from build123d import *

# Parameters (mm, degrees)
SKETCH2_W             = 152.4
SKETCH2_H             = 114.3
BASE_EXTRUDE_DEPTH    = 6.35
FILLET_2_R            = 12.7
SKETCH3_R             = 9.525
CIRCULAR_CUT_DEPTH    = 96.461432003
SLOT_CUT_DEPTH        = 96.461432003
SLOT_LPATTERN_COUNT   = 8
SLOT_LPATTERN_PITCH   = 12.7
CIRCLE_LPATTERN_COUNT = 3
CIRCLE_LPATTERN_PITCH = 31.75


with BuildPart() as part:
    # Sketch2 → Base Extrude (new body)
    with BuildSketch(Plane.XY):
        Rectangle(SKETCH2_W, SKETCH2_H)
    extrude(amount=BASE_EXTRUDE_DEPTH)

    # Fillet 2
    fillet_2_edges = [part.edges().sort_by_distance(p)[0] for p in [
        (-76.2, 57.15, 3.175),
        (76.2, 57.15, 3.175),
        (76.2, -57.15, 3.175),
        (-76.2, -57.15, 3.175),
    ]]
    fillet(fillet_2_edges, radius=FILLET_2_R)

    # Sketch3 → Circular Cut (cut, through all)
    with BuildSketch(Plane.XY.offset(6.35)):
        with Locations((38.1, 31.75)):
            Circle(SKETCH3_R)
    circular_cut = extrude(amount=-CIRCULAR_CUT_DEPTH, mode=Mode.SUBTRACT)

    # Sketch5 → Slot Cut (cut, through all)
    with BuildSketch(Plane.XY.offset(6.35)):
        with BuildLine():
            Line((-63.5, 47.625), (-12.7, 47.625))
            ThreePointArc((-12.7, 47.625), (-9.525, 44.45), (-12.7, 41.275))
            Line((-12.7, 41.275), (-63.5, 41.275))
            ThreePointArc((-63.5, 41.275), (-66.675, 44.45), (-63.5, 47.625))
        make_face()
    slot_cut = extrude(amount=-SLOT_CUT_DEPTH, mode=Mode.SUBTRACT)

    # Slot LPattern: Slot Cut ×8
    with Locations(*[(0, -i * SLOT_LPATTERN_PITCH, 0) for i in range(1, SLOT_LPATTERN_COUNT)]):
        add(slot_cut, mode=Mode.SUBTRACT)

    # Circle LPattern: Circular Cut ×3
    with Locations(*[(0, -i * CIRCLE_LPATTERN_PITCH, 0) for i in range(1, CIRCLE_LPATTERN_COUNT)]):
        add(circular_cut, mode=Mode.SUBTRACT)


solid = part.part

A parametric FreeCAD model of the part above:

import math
import FreeCAD as App
import Part
import Sketcher
Q = App.Units.Quantity


def edges_at(feature, points):
    """Names of the edges that pass closest to the given points."""
    edges = feature.Shape.Edges
    near = lambda p: min(range(len(edges)), key=lambda i: edges[i].distToShape(Part.Vertex(*p))[0])
    return sorted({f"Edge{near(p) + 1}" for p in points})

doc = App.newDocument("Part")
body = doc.addObject("PartDesign::Body", "Body")

# Sketch on XY plane
sketch1 = body.newObject("Sketcher::SketchObject", "Sketch")
sketch1.AttachmentSupport = (doc.getObject("XY_Plane"), [""])
sketch1.MapMode = "FlatFace"
sketch1.addGeometry(Part.LineSegment(App.Vector(-76.2, 57.15, 0), App.Vector(-76.2, -57.15, 0)), False)
sketch1.addGeometry(Part.LineSegment(App.Vector(-76.2, -57.15, 0), App.Vector(76.2, -57.15, 0)), False)
sketch1.addGeometry(Part.LineSegment(App.Vector(76.2, -57.15, 0), App.Vector(76.2, 57.15, 0)), False)
sketch1.addGeometry(Part.LineSegment(App.Vector(76.2, 57.15, 0), App.Vector(-76.2, 57.15, 0)), False)
sketch1.addConstraint(Sketcher.Constraint("Coincident", 0, 2, 1, 1))
sketch1.addConstraint(Sketcher.Constraint("Coincident", 1, 2, 2, 1))
sketch1.addConstraint(Sketcher.Constraint("Coincident", 2, 2, 3, 1))
sketch1.addConstraint(Sketcher.Constraint("Coincident", 3, 2, 0, 1))
sketch1.addConstraint(Sketcher.Constraint("Vertical", 0))
sketch1.addConstraint(Sketcher.Constraint("Horizontal", 1))
sketch1.addConstraint(Sketcher.Constraint("Vertical", 2))
sketch1.addConstraint(Sketcher.Constraint("Horizontal", 3))
sketch1.addConstraint(Sketcher.Constraint("Symmetric", 0, 2, 2, 2, -1, 1))
sketch1.addConstraint(Sketcher.Constraint("DistanceX", 1, 1, 1, 2, Q("6 in")))
sketch1.addConstraint(Sketcher.Constraint("DistanceY", 0, 2, 0, 1, Q("4.5 in")))
pad1 = body.newObject("PartDesign::Pad", "Pad")
pad1.Profile = sketch1
pad1.Length = Q("0.25 in")
doc.recompute()

fillet = body.newObject("PartDesign::Fillet", "Fillet")
fillet.Base = (pad1, edges_at(pad1, [
    (-76.2, 57.15, 3.175),
    (76.2, 57.15, 3.175),
    (76.2, -57.15, 3.175),
    (-76.2, -57.15, 3.175),
]))
fillet.Radius = Q("0.5 in")

# Sketch on XY plane
sketch2 = body.newObject("Sketcher::SketchObject", "Sketch001")
sketch2.AttachmentSupport = (doc.getObject("XY_Plane"), [""])
sketch2.MapMode = "FlatFace"
sketch2.AttachmentOffset = App.Placement(App.Vector(0, 0, 0.25 * 25.4), App.Rotation())
sketch2.addGeometry(Part.Circle(App.Vector(38.1, 31.75, 0), App.Vector(0, 0, 1), 9.525), False)
sketch2.addConstraint(Sketcher.Constraint("Diameter", 0, Q("0.75 in")))
sketch2.addConstraint(Sketcher.Constraint("DistanceX", -1, 1, 0, 3, Q("1.5 in")))
sketch2.addConstraint(Sketcher.Constraint("DistanceY", -1, 1, 0, 3, Q("1.25 in")))
pocket1 = body.newObject("PartDesign::Pocket", "Pocket")
pocket1.Profile = sketch2
pocket1.Type = "ThroughAll"

# Sketch on XY plane
sketch3 = body.newObject("Sketcher::SketchObject", "Sketch002")
sketch3.AttachmentSupport = (doc.getObject("XY_Plane"), [""])
sketch3.MapMode = "FlatFace"
sketch3.AttachmentOffset = App.Placement(App.Vector(0, 0, 0.25 * 25.4), App.Rotation())
sketch3.addGeometry(Part.LineSegment(App.Vector(-12.7, 47.625, 0), App.Vector(-63.5, 47.625, 0)), False)
sketch3.addGeometry(Part.ArcOfCircle(Part.Circle(App.Vector(-63.5, 44.45, 0), App.Vector(0, 0, 1), 3.175), math.radians(90), math.radians(270)), False)
sketch3.addGeometry(Part.LineSegment(App.Vector(-63.5, 41.275, 0), App.Vector(-12.7, 41.275, 0)), False)
sketch3.addGeometry(Part.ArcOfCircle(Part.Circle(App.Vector(-12.7, 44.45, 0), App.Vector(0, 0, 1), 3.175), math.radians(-90), math.radians(90)), False)
sketch3.addConstraint(Sketcher.Constraint("Tangent", 0, 2, 1, 1))
sketch3.addConstraint(Sketcher.Constraint("Tangent", 1, 2, 2, 1))
sketch3.addConstraint(Sketcher.Constraint("Tangent", 2, 2, 3, 1))
sketch3.addConstraint(Sketcher.Constraint("Tangent", 3, 2, 0, 1))
sketch3.addConstraint(Sketcher.Constraint("Horizontal", 0))
sketch3.addConstraint(Sketcher.Constraint("Horizontal", 2))
sketch3.addConstraint(Sketcher.Constraint("DistanceX", 0, 2, 0, 1, Q("2 in")))
sketch3.addConstraint(Sketcher.Constraint("Radius", 1, Q("0.125 in")))
sketch3.addConstraint(Sketcher.Constraint("DistanceX", 1, 3, -1, 1, Q("2.5 in")))
sketch3.addConstraint(Sketcher.Constraint("DistanceY", -1, 1, 1, 3, Q("1.75 in")))
pocket2 = body.newObject("PartDesign::Pocket", "Pocket001")
pocket2.Profile = sketch3
pocket2.Type = "ThroughAll"
doc.recompute()

linearpattern = body.newObject("PartDesign::LinearPattern", "LinearPattern")
linearpattern.Originals = [pocket2]
linearpattern.Direction = (doc.getObject("Y_Axis"), [""])
linearpattern.Mode = "offset"
linearpattern.Offset = Q("0.5 in")
linearpattern.Occurrences = 8
linearpattern.Reversed = True
body.Tip = linearpattern
doc.recompute()

linearpattern2 = body.newObject("PartDesign::LinearPattern", "LinearPattern001")
linearpattern2.Originals = [pocket1]
linearpattern2.Direction = (doc.getObject("Y_Axis"), [""])
linearpattern2.Mode = "offset"
linearpattern2.Offset = Q("1.25 in")
linearpattern2.Occurrences = 3
linearpattern2.Reversed = True
body.Tip = linearpattern2

doc.recompute()
